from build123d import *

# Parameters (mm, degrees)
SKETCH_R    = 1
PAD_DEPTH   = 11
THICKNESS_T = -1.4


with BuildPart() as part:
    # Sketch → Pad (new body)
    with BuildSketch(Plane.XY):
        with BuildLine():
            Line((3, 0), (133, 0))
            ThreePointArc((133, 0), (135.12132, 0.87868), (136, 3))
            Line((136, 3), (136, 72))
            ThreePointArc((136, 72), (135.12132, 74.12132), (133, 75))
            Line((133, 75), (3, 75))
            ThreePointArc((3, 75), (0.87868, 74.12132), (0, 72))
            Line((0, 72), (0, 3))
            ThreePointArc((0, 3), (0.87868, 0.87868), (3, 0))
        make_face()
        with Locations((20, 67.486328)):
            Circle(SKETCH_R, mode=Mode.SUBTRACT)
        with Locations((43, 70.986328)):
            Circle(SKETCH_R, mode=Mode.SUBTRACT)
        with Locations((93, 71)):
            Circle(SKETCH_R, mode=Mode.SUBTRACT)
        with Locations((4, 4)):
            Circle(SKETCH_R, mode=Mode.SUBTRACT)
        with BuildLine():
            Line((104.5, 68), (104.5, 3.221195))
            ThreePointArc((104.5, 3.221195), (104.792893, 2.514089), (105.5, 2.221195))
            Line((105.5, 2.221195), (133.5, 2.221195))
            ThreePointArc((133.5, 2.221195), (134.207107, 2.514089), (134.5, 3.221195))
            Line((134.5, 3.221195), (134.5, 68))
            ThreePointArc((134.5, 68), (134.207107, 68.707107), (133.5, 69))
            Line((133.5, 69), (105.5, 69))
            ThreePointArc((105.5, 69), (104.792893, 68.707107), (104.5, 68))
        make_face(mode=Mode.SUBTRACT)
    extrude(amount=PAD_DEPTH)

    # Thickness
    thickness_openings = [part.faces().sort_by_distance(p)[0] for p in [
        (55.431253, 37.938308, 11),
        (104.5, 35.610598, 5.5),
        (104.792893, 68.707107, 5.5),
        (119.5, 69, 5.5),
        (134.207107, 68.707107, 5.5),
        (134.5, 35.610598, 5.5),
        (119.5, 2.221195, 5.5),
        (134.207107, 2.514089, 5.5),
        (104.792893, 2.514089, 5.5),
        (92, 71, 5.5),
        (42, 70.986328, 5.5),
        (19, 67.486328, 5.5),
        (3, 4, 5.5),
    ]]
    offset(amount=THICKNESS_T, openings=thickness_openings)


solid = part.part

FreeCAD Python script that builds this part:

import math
import FreeCAD as App
import Part
import Sketcher


def faces_at(feature, points):
    """Names of the faces that lie closest to the given points."""
    faces = feature.Shape.Faces
    near = lambda p: min(range(len(faces)), key=lambda i: faces[i].distToShape(Part.Vertex(*p))[0])
    return sorted({f"Face{near(p) + 1}" for p in points})

doc = App.newDocument("Part")
body = doc.addObject("PartDesign::Body", "Body")

# Sketch on XY plane
sketch1 = body.newObject("Sketcher::SketchObject", "Sketch")
sketch1.AttachmentSupport = (doc.getObject("XY_Plane"), [""])
sketch1.MapMode = "FlatFace"
sketch1.addGeometry(Part.LineSegment(App.Vector(3, 0, 0), App.Vector(133, 0, 0)), False)
sketch1.addGeometry(Part.ArcOfCircle(Part.Circle(App.Vector(132.999999, 3.000001, 0), App.Vector(0, 0, 1), 3.000001), math.radians(-89.999978), math.radians(-0.000022)), False)
sketch1.addGeometry(Part.LineSegment(App.Vector(136, 3, 0), App.Vector(136, 72, 0)), False)
sketch1.addGeometry(Part.ArcOfCircle(Part.Circle(App.Vector(132.999999, 71.999999, 0), App.Vector(0, 0, 1), 3.000001), math.radians(0.000022), math.radians(89.999978)), False)
sketch1.addGeometry(Part.LineSegment(App.Vector(133, 75, 0), App.Vector(3, 75, 0)), False)
sketch1.addGeometry(Part.ArcOfCircle(Part.Circle(App.Vector(3.000001, 71.999999, 0), App.Vector(0, 0, 1), 3.000001), math.radians(90.000022), math.radians(179.999978)), False)
sketch1.addGeometry(Part.LineSegment(App.Vector(0, 72, 0), App.Vector(0, 3, 0)), False)
sketch1.addGeometry(Part.ArcOfCircle(Part.Circle(App.Vector(3.000001, 3.000001, 0), App.Vector(0, 0, 1), 3.000001), math.radians(-179.999978), math.radians(-90.000022)), False)
sketch1.addGeometry(Part.Circle(App.Vector(4, 4, 0), App.Vector(0, 0, 1), 1), False)
sketch1.addGeometry(Part.LineSegment(App.Vector(104.5, 3.221195, 0), App.Vector(104.5, 68, 0)), False)
sketch1.addGeometry(Part.ArcOfCircle(Part.Circle(App.Vector(105.499999, 68.000001, 0), App.Vector(0, 0, 1), 0.999999), math.radians(89.999957), math.radians(180.000043)), False)
sketch1.addGeometry(Part.LineSegment(App.Vector(105.5, 69, 0), App.Vector(133.5, 69, 0)), False)
sketch1.addGeometry(Part.ArcOfCircle(Part.Circle(App.Vector(133.500001, 68.000001, 0), App.Vector(0, 0, 1), 0.999999), math.radians(-0.000043), math.radians(90.000043)), False)
sketch1.addGeometry(Part.LineSegment(App.Vector(134.5, 68, 0), App.Vector(134.5, 3.221195, 0)), False)
sketch1.addGeometry(Part.ArcOfCircle(Part.Circle(App.Vector(133.499999, 3.221196, 0), App.Vector(0, 0, 1), 1.000001), math.radians(-89.999945), math.radians(-0.000055)), False)
sketch1.addGeometry(Part.LineSegment(App.Vector(133.5, 2.221195, 0), App.Vector(105.5, 2.221195, 0)), False)
sketch1.addGeometry(Part.ArcOfCircle(Part.Circle(App.Vector(105.500001, 3.221196, 0), App.Vector(0, 0, 1), 1.000001), math.radians(-179.999945), math.radians(-90.000055)), False)
sketch1.addGeometry(Part.Circle(App.Vector(20, 67.486328, 0), App.Vector(0, 0, 1), 1), False)
sketch1.addGeometry(Part.Circle(App.Vector(43, 70.986328, 0), App.Vector(0, 0, 1), 1), False)
sketch1.addGeometry(Part.Circle(App.Vector(93, 71, 0), App.Vector(0, 0, 1), 1), False)
sketch1.addConstraint(Sketcher.Constraint("Tangent", 0, 2, 1, 1))
sketch1.addConstraint(Sketcher.Constraint("Tangent", 1, 2, 2, 1))
sketch1.addConstraint(Sketcher.Constraint("Tangent", 2, 2, 3, 1))
sketch1.addConstraint(Sketcher.Constraint("Tangent", 3, 2, 4, 1))
sketch1.addConstraint(Sketcher.Constraint("Tangent", 4, 2, 5, 1))
sketch1.addConstraint(Sketcher.Constraint("Tangent", 5, 2, 6, 1))
sketch1.addConstraint(Sketcher.Constraint("Tangent", 6, 2, 7, 1))
sketch1.addConstraint(Sketcher.Constraint("Tangent", 7, 2, 0, 1))
sketch1.addConstraint(Sketcher.Constraint("Tangent", 9, 2, 10, 2))
sketch1.addConstraint(Sketcher.Constraint("Tangent", 10, 1, 11, 1))
sketch1.addConstraint(Sketcher.Constraint("Tangent", 11, 2, 12, 2))
sketch1.addConstraint(Sketcher.Constraint("Tangent", 12, 1, 13, 1))
sketch1.addConstraint(Sketcher.Constraint("Tangent", 13, 2, 14, 2))
sketch1.addConstraint(Sketcher.Constraint("Tangent", 14, 1, 15, 1))
sketch1.addConstraint(Sketcher.Constraint("Tangent", 15, 2, 16, 2))
sketch1.addConstraint(Sketcher.Constraint("Tangent", 16, 1, 9, 1))
sketch1.addConstraint(Sketcher.Constraint("Horizontal", 0))
sketch1.addConstraint(Sketcher.Constraint("Vertical", 2))
sketch1.addConstraint(Sketcher.Constraint("Horizontal", 4))
sketch1.addConstraint(Sketcher.Constraint("Vertical", 6))
sketch1.addConstraint(Sketcher.Constraint("Vertical", 9))
sketch1.addConstraint(Sketcher.Constraint("Horizontal", 11))
sketch1.addConstraint(Sketcher.Constraint("Vertical", 13))
sketch1.addConstraint(Sketcher.Constraint("Horizontal", 15))
sketch1.addConstraint(Sketcher.Constraint("Equal", 1, 3))
sketch1.addConstraint(Sketcher.Constraint("Equal", 3, 5))
sketch1.addConstraint(Sketcher.Constraint("Equal", 5, 7))
sketch1.addConstraint(Sketcher.Constraint("Equal", 8, 10))
sketch1.addConstraint(Sketcher.Constraint("Equal", 10, 12))
sketch1.addConstraint(Sketcher.Constraint("Equal", 12, 14))
sketch1.addConstraint(Sketcher.Constraint("Equal", 14, 16))
sketch1.addConstraint(Sketcher.Constraint("Equal", 16, 17))
sketch1.addConstraint(Sketcher.Constraint("Equal", 17, 18))
sketch1.addConstraint(Sketcher.Constraint("Equal", 18, 19))
sketch1.addConstraint(Sketcher.Constraint("PointOnObject", 0, 2, -1))
sketch1.addConstraint(Sketcher.Constraint("PointOnObject", 5, 2, -2))
sketch1.addConstraint(Sketcher.Constraint("Diameter", 8, 2.0))
sketch1.addConstraint(Sketcher.Constraint("Radius", 1, 3.000001))
sketch1.addConstraint(Sketcher.Constraint("DistanceX", 0, 1, 0, 2, 130.0))
sketch1.addConstraint(Sketcher.Constraint("DistanceX", 11, 1, 11, 2, 28.0))
sketch1.addConstraint(Sketcher.Constraint("DistanceY", 2, 1, 2, 2, 69.0))
sketch1.addConstraint(Sketcher.Constraint("DistanceX", -1, 1, 8, 3, 4.0))
sketch1.addConstraint(Sketcher.Constraint("DistanceY", -1, 1, 8, 3, 4.0))
sketch1.addConstraint(Sketcher.Constraint("DistanceY", -1, 1, 10, 3, 68.000001))
sketch1.addConstraint(Sketcher.Constraint("DistanceX", -1, 1, 17, 3, 20.0))
sketch1.addConstraint(Sketcher.Constraint("DistanceX", -1, 1, 18, 3, 43.0))
sketch1.addConstraint(Sketcher.Constraint("DistanceX", -1, 1, 19, 3, 93.0))
sketch1.addConstraint(Sketcher.Constraint("DistanceY", -1, 1, 19, 3, 71.0))
sketch1.addConstraint(Sketcher.Constraint("DistanceX", -1, 1, 10, 3, 105.499999))
sketch1.addConstraint(Sketcher.Constraint("DistanceY", 17, 3, 18, 3, 3.5))
sketch1.addConstraint(Sketcher.Constraint("DistanceY", 9, 1, 9, 2, 64.778805))
sketch1.addConstraint(Sketcher.Constraint("DistanceY", -1, 1, 17, 3, 67.486328))
pad1 = body.newObject("PartDesign::Pad", "Pad")
pad1.Profile = sketch1
pad1.Length = 11
doc.recompute()

thickness = body.newObject("PartDesign::Thickness", "Thickness")
thickness.Base = (pad1, faces_at(pad1, [
    (68, 37.5, 11),
    (104.5, 35.611, 5.5),
    (104.793, 68.707, 5.5),
    (119.5, 69, 5.5),
    (134.207, 68.707, 5.5),
    (134.5, 35.611, 5.5),
    (119.5, 2.221, 5.5),
    (134.207, 2.514, 5.5),
    (104.793, 2.514, 5.5),
    (92, 71, 5.5),
    (42, 70.986, 5.5),
    (19, 67.486, 5.5),
    (3, 4, 5.5),
]))
thickness.Value = 1.4
thickness.Reversed = True
thickness.Join = "Arc"

doc.recompute()
